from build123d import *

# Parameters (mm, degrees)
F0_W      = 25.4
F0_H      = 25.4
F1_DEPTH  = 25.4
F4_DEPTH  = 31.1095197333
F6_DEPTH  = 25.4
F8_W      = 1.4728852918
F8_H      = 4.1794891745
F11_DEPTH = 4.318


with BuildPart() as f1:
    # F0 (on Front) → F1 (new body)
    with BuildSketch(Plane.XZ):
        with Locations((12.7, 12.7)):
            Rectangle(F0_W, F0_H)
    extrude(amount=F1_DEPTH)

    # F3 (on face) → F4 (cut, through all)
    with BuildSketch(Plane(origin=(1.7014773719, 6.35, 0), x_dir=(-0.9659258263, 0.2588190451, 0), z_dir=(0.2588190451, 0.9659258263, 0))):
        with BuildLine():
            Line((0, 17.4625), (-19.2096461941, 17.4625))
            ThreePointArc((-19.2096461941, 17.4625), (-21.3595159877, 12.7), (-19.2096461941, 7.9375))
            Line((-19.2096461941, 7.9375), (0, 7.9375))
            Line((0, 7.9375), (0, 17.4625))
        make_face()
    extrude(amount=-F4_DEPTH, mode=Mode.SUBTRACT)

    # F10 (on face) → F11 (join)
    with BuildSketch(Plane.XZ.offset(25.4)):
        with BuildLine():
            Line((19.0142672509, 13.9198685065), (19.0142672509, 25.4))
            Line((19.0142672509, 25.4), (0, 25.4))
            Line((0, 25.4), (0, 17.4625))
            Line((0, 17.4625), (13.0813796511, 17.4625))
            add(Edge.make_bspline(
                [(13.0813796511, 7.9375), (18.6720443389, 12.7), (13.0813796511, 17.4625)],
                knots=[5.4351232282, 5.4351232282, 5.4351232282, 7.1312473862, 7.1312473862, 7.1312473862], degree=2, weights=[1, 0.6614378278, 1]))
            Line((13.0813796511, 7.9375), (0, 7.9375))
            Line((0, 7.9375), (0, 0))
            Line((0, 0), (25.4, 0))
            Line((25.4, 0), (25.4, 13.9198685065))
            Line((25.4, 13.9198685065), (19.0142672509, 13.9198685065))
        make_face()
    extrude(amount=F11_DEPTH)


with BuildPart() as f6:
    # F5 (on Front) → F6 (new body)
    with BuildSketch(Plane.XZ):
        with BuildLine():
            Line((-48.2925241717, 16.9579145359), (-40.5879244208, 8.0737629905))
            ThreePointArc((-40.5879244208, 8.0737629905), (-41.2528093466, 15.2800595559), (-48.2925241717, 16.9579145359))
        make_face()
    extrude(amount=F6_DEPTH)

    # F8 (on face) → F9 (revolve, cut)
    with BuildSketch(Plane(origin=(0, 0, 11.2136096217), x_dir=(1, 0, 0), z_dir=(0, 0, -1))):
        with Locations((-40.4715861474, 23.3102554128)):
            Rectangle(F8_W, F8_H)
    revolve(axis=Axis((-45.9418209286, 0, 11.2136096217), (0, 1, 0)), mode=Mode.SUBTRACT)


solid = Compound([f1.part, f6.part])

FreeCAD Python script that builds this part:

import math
import FreeCAD as App
import Part
import Sketcher

V = App.Vector
Q = App.Units.Quantity

doc = App.newDocument("Part")
body = doc.addObject("PartDesign::Body", "Body")

sketch1 = doc.addObject("Sketcher::SketchObject", "Sketch")
body.addObject(sketch1)
sketch1.AttachmentSupport = (doc.XZ_Plane, [""])
sketch1.MapMode = "FlatFace"
sketch1.addGeometry([
    Part.LineSegment(V(0, 25, 0), V(0, 0, 0)),
    Part.LineSegment(V(0, 0, 0), V(25, 0, 0)),
    Part.LineSegment(V(25, 0, 0), V(25, 25, 0)),
    Part.LineSegment(V(25, 25, 0), V(0, 25, 0)),
], False)
sketch1.addConstraint([
    Sketcher.Constraint("Coincident", 0, 2, 1, 1),
    Sketcher.Constraint("Coincident", 1, 2, 2, 1),
    Sketcher.Constraint("Coincident", 2, 2, 3, 1),
    Sketcher.Constraint("Coincident", 3, 2, 0, 1),
    Sketcher.Constraint("Vertical", 0),
    Sketcher.Constraint("Horizontal", 1),
    Sketcher.Constraint("Vertical", 2),
    Sketcher.Constraint("Horizontal", 3),
    Sketcher.Constraint("Coincident", 0, 2, -1, 1),
    Sketcher.Constraint("Equal", 3, 0),
    Sketcher.Constraint("DistanceX", 1, 1, 1, 2, Q("1 in")),
])
pad1 = doc.addObject("PartDesign::Pad", "Pad")
body.addObject(pad1)
pad1.Profile = sketch1
pad1.Length = Q("1 in")

sketch2 = doc.addObject("Sketcher::SketchObject", "Sketch001")
body.addObject(sketch2)
sketch2.Placement = App.Placement(V(1.701477, 6.35, 0), App.Rotation(V(-0.965925826, 0.258819045, 0), V(0, 0, 0.999999999), V(0.258819045, 0.965925826, 0), "ZXY"))
sketch2.addGeometry([
    Part.LineSegment(V(0, 17, 0), V(-19, 17, 0)),
    Part.ArcOfCircle(Part.Circle(V(-15, 13, 0), V(0, 0, 1), 6), math.radians(131), math.radians(229)),
    Part.LineSegment(V(-19, 8, 0), V(0, 8, 0)),
    Part.LineSegment(V(0, 8, 0), V(0, 17, 0)),
], False)
sketch2.addConstraint([
    Sketcher.Constraint("Coincident", 0, 2, 1, 1),
    Sketcher.Constraint("Coincident", 1, 2, 2, 1),
    Sketcher.Constraint("Coincident", 2, 2, 3, 1),
    Sketcher.Constraint("Coincident", 3, 2, 0, 1),
    Sketcher.Constraint("Horizontal", 0),
    Sketcher.Constraint("Horizontal", 2),
    Sketcher.Constraint("Vertical", 3),
    Sketcher.Constraint("PointOnObject", 2, 2, -2),
    Sketcher.Constraint("Vertical", 0, 2, 1, 2),
    Sketcher.Constraint("Radius", 1, Q("0.25 in")),
    Sketcher.Constraint("DistanceY", -1, 1, 1, 3, Q("0.5 in")),
    Sketcher.Constraint("DistanceY", 3, 1, 3, 2, Q("0.375 in")),
    Sketcher.Constraint("DistanceX", 0, 2, 0, 1, 19.209646),
])
pocket1 = doc.addObject("PartDesign::Pocket", "Pocket")
body.addObject(pocket1)
pocket1.Profile = sketch2
pocket1.Type = "ThroughAll"

sketch3 = doc.addObject("Sketcher::SketchObject", "Sketch002")
body.addObject(sketch3)
sketch3.AttachmentSupport = (doc.XZ_Plane, [""])
sketch3.MapMode = "FlatFace"
sketch3.AttachmentOffset = App.Placement(V(0, 0, 1 * 25.4), App.Rotation())
sketch3.addGeometry([
    Part.LineSegment(V(19.014267, 13.919869, 0), V(19.014267, 25.4, 0)),
    Part.LineSegment(V(19.014267, 25.4, 0), V(0, 25.4, 0)),
    Part.LineSegment(V(0, 25.4, 0), V(0, 17.4625, 0)),
    Part.LineSegment(V(0, 17.4625, 0), V(13.08138, 17.4625, 0)),
    Part.BSplineCurve([V(13.08138, 7.9375, 0), V(18.672044, 12.7, 0), V(13.08138, 17.4625, 0)], [3, 3], [5.435123228, 7.131247386], False, 2, [1, 0.661437828, 1], False),
    Part.LineSegment(V(13.08138, 7.9375, 0), V(0, 7.9375, 0)),
    Part.LineSegment(V(0, 7.9375, 0), V(0, 0, 0)),
    Part.LineSegment(V(0, 0, 0), V(25.4, 0, 0)),
    Part.LineSegment(V(25.4, 0, 0), V(25.4, 13.919869, 0)),
    Part.LineSegment(V(25.4, 13.919869, 0), V(19.014267, 13.919869, 0)),
], False)
sketch3.addConstraint([
    Sketcher.Constraint("Block", 4),
    Sketcher.Constraint("Coincident", 0, 2, 1, 1),
    Sketcher.Constraint("Coincident", 1, 2, 2, 1),
    Sketcher.Constraint("Coincident", 2, 2, 3, 1),
    Sketcher.Constraint("Coincident", 3, 2, 4, 2),
    Sketcher.Constraint("Coincident", 4, 1, 5, 1),
    Sketcher.Constraint("Coincident", 5, 2, 6, 1),
    Sketcher.Constraint("Coincident", 6, 2, 7, 1),
    Sketcher.Constraint("Coincident", 7, 2, 8, 1),
    Sketcher.Constraint("Coincident", 8, 2, 9, 1),
    Sketcher.Constraint("Coincident", 9, 2, 0, 1),
    Sketcher.Constraint("Vertical", 0),
    Sketcher.Constraint("Horizontal", 1),
    Sketcher.Constraint("Vertical", 2),
    Sketcher.Constraint("Horizontal", 3),
    Sketcher.Constraint("Horizontal", 5),
    Sketcher.Constraint("Vertical", 6),
    Sketcher.Constraint("Horizontal", 7),
    Sketcher.Constraint("Vertical", 8),
    Sketcher.Constraint("Horizontal", 9),
    Sketcher.Constraint("Coincident", 6, 2, -1, 1),
    Sketcher.Constraint("PointOnObject", 1, 2, -2),
    Sketcher.Constraint("Equal", 2, 6),
    Sketcher.Constraint("DistanceX", 7, 1, 7, 2, Q("1 in")),
    Sketcher.Constraint("DistanceY", 0, 1, 0, 2, 11.480131),
    Sketcher.Constraint("DistanceX", 1, 2, 1, 1, 19.014267),
])
pad2 = doc.addObject("PartDesign::Pad", "Pad001")
body.addObject(pad2)
pad2.Profile = sketch3
pad2.Length = Q("0.17 in")
body2 = doc.addObject("PartDesign::Body", "Body001")

sketch4 = doc.addObject("Sketcher::SketchObject", "Sketch003")
body2.addObject(sketch4)
sketch4.AttachmentSupport = (doc.getObject("XZ_Plane001"), [""])
sketch4.MapMode = "FlatFace"
sketch4.addGeometry([
    Part.LineSegment(V(-48, 17, 0), V(-41, 8, 0)),
    Part.ArcOfCircle(Part.Circle(V(-46, 11, 0), V(0, 0, 1), 6), math.radians(-30), math.radians(112)),
], False)
sketch4.addConstraint([
    Sketcher.Constraint("Coincident", 0, 1, 1, 2),
    Sketcher.Constraint("Coincident", 1, 1, 0, 2),
    Sketcher.Constraint("Radius", 1, 6.206677),
    Sketcher.Constraint("DistanceX", 0, 1, 1, 1, 7.7046),
    Sketcher.Constraint("DistanceX", 1, 3, -1, 1, 45.941821),
    Sketcher.Constraint("DistanceY", -1, 1, 1, 3, 11.21361),
    Sketcher.Constraint("DistanceY", 1, 1, 0, 1, 8.884152),
])
pad3 = doc.addObject("PartDesign::Pad", "Pad002")
body2.addObject(pad3)
pad3.Profile = sketch4
pad3.Length = Q("1 in")

sketch5 = doc.addObject("Sketcher::SketchObject", "Sketch004")
body2.addObject(sketch5)
sketch5.AttachmentSupport = (doc.getObject("XY_Plane001"), [""])
sketch5.MapMode = "FlatFace"
sketch5.AttachmentOffset = App.Placement(V(0, 0, 11.21361), App.Rotation())
sketch5.addGeometry([
    Part.LineSegment(V(-41.2, -25.4, 0), V(-41.2, -21.2, 0)),
    Part.LineSegment(V(-41.2, -21.2, 0), V(-39.7, -21.2, 0)),
    Part.LineSegment(V(-39.7, -21.2, 0), V(-39.7, -25.4, 0)),
    Part.LineSegment(V(-39.7, -25.4, 0), V(-41.2, -25.4, 0)),
], False)
sketch5.addGeometry(Part.LineSegment(V(-45.9, -25.4, 0), V(-45.9, -21.2, 0)), True)
sketch5.addConstraint([
    Sketcher.Constraint("Coincident", 0, 2, 1, 1),
    Sketcher.Constraint("Coincident", 1, 2, 2, 1),
    Sketcher.Constraint("Coincident", 2, 2, 3, 1),
    Sketcher.Constraint("Coincident", 3, 2, 0, 1),
    Sketcher.Constraint("Vertical", 0),
    Sketcher.Constraint("Horizontal", 1),
    Sketcher.Constraint("Vertical", 2),
    Sketcher.Constraint("Horizontal", 3),
    Sketcher.Constraint("Vertical", 4),
    Sketcher.Constraint("Horizontal", 3, 2, 4, 1),
    Sketcher.Constraint("Horizontal", 1, 2, 4, 2),
    Sketcher.Constraint("DistanceY", 2, 2, -1, 1, Q("1 in")),
    Sketcher.Constraint("DistanceY", 0, 1, 0, 2, 4.179489),
    Sketcher.Constraint("DistanceX", 1, 1, 1, 2, 1.472885),
    Sketcher.Constraint("DistanceX", 0, 2, -1, 1, 41.208029),
    Sketcher.Constraint("DistanceX", 4, 1, -1, 1, 45.941821),
])
groove = doc.addObject("PartDesign::Groove", "Groove")
body2.addObject(groove)
groove.Profile = sketch5
groove.ReferenceAxis = (sketch5, ["Axis0"])
groove.Angle = 360

doc.recompute()
